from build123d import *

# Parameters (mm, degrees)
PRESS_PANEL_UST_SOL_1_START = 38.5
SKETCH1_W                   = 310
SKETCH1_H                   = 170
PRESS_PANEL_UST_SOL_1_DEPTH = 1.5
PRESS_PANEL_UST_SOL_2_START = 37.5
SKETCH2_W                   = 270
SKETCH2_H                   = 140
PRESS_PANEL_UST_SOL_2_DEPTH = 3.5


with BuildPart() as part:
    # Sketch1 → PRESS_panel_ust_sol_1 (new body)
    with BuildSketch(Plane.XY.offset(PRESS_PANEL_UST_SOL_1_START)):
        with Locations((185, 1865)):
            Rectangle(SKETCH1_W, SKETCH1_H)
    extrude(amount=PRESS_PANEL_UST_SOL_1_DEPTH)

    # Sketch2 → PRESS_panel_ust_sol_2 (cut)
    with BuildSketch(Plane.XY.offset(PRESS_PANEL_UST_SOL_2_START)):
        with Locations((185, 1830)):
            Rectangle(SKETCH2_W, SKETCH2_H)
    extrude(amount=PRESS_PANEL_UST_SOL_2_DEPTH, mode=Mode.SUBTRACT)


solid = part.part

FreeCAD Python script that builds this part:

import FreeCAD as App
import Part
import Sketcher


def add_polygon(sketch, points):
    """Adds a closed chain of lines whose ends are joined by coincident constraints."""
    first, n = sketch.GeometryCount, len(points)
    for a, b in zip(points, points[1:] + points[:1]):
        sketch.addGeometry(Part.LineSegment(App.Vector(*a, 0), App.Vector(*b, 0)), False)
    for i in range(n):
        sketch.addConstraint(Sketcher.Constraint("Coincident", first + i, 2, first + (i + 1) % n, 1))

doc = App.newDocument("Part")
body = doc.addObject("PartDesign::Body", "Body")

# Sketch on XY plane
sketch1 = body.newObject("Sketcher::SketchObject", "Sketch")
sketch1.AttachmentSupport = (doc.getObject("XY_Plane"), [""])
sketch1.MapMode = "FlatFace"
sketch1.AttachmentOffset = App.Placement(App.Vector(0, 0, 38.5), App.Rotation())
add_polygon(sketch1, [(30, 1950), (30, 1780), (340, 1780), (340, 1950)])  # lines 0-3
sketch1.addConstraint(Sketcher.Constraint("Vertical", 0))
sketch1.addConstraint(Sketcher.Constraint("Horizontal", 1))
sketch1.addConstraint(Sketcher.Constraint("Vertical", 2))
sketch1.addConstraint(Sketcher.Constraint("Horizontal", 3))
sketch1.addConstraint(Sketcher.Constraint("DistanceX", 1, 1, 1, 2, 310.0))
sketch1.addConstraint(Sketcher.Constraint("DistanceY", 0, 2, 0, 1, 170.0))
sketch1.addConstraint(Sketcher.Constraint("DistanceX", -1, 1, 0, 2, 30.0))
sketch1.addConstraint(Sketcher.Constraint("DistanceY", -1, 1, 0, 2, 1780.0))
pad1 = body.newObject("PartDesign::Pad", "Pad")
pad1.Profile = sketch1
pad1.Length = 1.5

# Sketch on XY plane
sketch2 = body.newObject("Sketcher::SketchObject", "Sketch001")
sketch2.AttachmentSupport = (doc.getObject("XY_Plane"), [""])
sketch2.MapMode = "FlatFace"
sketch2.AttachmentOffset = App.Placement(App.Vector(0, 0, 37.5), App.Rotation())
add_polygon(sketch2, [(50, 1900), (50, 1760), (320, 1760), (320, 1900)])  # lines 0-3
sketch2.addConstraint(Sketcher.Constraint("Vertical", 0))
sketch2.addConstraint(Sketcher.Constraint("Horizontal", 1))
sketch2.addConstraint(Sketcher.Constraint("Vertical", 2))
sketch2.addConstraint(Sketcher.Constraint("Horizontal", 3))
sketch2.addConstraint(Sketcher.Constraint("DistanceX", 1, 1, 1, 2, 270.0))
sketch2.addConstraint(Sketcher.Constraint("DistanceY", 0, 2, 0, 1, 140.0))
sketch2.addConstraint(Sketcher.Constraint("DistanceX", -1, 1, 0, 2, 50.0))
sketch2.addConstraint(Sketcher.Constraint("DistanceY", -1, 1, 0, 2, 1760.0))
pocket1 = body.newObject("PartDesign::Pocket", "Pocket")
pocket1.Profile = sketch2
pocket1.Length = 3.5
pocket1.Reversed = True

doc.recompute()
